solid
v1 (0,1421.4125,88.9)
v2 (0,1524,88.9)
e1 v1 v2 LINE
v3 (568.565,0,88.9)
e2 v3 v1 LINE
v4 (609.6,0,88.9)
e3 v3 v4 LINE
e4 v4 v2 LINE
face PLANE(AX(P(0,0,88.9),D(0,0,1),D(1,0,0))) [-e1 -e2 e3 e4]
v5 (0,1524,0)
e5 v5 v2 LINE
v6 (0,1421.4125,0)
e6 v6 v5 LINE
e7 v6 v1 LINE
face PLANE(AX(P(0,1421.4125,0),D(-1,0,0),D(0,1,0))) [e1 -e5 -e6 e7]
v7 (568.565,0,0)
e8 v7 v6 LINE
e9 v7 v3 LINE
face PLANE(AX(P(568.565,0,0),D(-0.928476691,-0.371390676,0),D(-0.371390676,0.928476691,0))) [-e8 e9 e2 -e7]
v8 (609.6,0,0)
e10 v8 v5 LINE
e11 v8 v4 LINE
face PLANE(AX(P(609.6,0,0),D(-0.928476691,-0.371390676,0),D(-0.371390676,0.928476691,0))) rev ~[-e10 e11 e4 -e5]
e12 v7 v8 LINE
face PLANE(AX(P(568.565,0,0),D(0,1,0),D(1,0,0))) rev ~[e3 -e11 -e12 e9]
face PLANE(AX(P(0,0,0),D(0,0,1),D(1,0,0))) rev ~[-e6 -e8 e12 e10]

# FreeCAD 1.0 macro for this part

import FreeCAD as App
import Part
import Sketcher

V = App.Vector
Q = App.Units.Quantity


def add_polygon(sketch, points):
    """Adds a closed chain of lines whose ends are joined by coincident constraints."""
    first, n = sketch.GeometryCount, len(points)
    for a, b in zip(points, points[1:] + points[:1]):
        sketch.addGeometry(Part.LineSegment(App.Vector(*a, 0), App.Vector(*b, 0)), False)
    for i in range(n):
        sketch.addConstraint(Sketcher.Constraint("Coincident", first + i, 2, first + (i + 1) % n, 1))

doc = App.newDocument("Part")
body = doc.addObject("PartDesign::Body", "Body")

# Sketch on XY plane
sketch1 = body.newObject("Sketcher::SketchObject", "Sketch")
sketch1.AttachmentSupport = (doc.getObject("XY_Plane"), [""])
sketch1.MapMode = "FlatFace"
add_polygon(sketch1, [(0, 1524), (0, 1421), (569, 0), (610, 0)])  # lines 0-3
sketch1.addConstraint([
    Sketcher.Constraint("Vertical", 0),
    Sketcher.Constraint("Horizontal", 2),
    Sketcher.Constraint("PointOnObject", 0, 2, -2),
    Sketcher.Constraint("PointOnObject", 1, 2, -1),
    Sketcher.Constraint("Parallel", 1, 3),
    Sketcher.Constraint("DistanceX", -1, 1, 2, 2, Q("24 in")),
    Sketcher.Constraint("DistanceY", -1, 1, 3, 2, Q("60 in")),
    Sketcher.Constraint("DistanceX", 2, 1, 2, 2, 41.035),
])
pad1 = body.newObject("PartDesign::Pad", "Pad")
pad1.Profile = sketch1
pad1.Length = Q("3.5 in")

doc.recompute()
